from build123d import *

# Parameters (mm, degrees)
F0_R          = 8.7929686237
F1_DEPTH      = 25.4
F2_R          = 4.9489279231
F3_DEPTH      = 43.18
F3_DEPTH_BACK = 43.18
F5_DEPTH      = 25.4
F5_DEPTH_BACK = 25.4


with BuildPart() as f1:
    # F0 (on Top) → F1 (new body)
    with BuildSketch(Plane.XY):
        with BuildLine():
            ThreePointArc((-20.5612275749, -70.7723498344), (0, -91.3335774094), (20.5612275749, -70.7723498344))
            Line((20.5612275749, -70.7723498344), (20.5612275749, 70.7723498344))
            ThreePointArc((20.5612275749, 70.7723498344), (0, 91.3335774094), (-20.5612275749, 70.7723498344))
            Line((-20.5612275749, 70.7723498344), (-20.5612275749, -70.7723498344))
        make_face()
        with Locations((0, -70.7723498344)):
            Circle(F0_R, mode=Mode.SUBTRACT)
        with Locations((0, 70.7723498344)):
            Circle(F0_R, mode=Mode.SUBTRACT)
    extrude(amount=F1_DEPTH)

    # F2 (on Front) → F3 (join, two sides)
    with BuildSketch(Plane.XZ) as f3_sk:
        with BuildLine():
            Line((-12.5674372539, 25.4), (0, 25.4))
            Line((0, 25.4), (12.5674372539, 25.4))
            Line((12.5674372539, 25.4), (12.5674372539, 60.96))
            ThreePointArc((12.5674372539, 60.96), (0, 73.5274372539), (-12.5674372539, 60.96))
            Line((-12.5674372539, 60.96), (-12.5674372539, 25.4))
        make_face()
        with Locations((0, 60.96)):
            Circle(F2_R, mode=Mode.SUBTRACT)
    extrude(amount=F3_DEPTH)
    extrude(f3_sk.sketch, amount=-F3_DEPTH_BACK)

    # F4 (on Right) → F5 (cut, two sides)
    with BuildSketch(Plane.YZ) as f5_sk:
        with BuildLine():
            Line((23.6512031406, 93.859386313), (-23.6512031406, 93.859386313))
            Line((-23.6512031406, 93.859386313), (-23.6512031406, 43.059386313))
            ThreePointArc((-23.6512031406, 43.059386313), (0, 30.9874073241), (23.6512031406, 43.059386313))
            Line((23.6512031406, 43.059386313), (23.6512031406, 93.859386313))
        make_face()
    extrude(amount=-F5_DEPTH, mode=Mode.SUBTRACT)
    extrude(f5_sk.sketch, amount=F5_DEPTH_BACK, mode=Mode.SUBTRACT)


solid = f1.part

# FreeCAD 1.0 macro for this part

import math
import FreeCAD as App
import Part
import Sketcher

V = App.Vector
Q = App.Units.Quantity

doc = App.newDocument("Part")
body = doc.addObject("PartDesign::Body", "Body")

sketch1 = body.newObject("Sketcher::SketchObject", "Sketch")
sketch1.AttachmentSupport = (doc.getObject("XY_Plane"), [""])
sketch1.MapMode = "FlatFace"
sketch1.addGeometry(Part.ArcOfCircle(Part.Circle(V(0, -70.77235, 0), V(0, 0, 1), 20.561228), math.radians(180), math.radians(360)), False)
sketch1.addGeometry(Part.LineSegment(V(20.561228, -70.77235, 0), V(20.561228, 70.77235, 0)), False)
sketch1.addGeometry(Part.ArcOfCircle(Part.Circle(V(0, 70.77235, 0), V(0, 0, 1), 20.561228), math.radians(0), math.radians(180)), False)
sketch1.addGeometry(Part.LineSegment(V(-20.561228, 70.77235, 0), V(-20.561228, -70.77235, 0)), False)
sketch1.addGeometry(Part.Circle(V(0, -70.77235, 0), V(0, 0, 1), 8.792969), False)
sketch1.addGeometry(Part.Circle(V(0, 70.77235, 0), V(0, 0, 1), 8.792969), False)
sketch1.addConstraint(Sketcher.Constraint("Tangent", 0, 2, 1, 1))
sketch1.addConstraint(Sketcher.Constraint("Tangent", 1, 2, 2, 1))
sketch1.addConstraint(Sketcher.Constraint("Tangent", 2, 2, 3, 1))
sketch1.addConstraint(Sketcher.Constraint("Tangent", 3, 2, 0, 1))
sketch1.addConstraint(Sketcher.Constraint("Vertical", 1))
sketch1.addConstraint(Sketcher.Constraint("Vertical", 3))
sketch1.addConstraint(Sketcher.Constraint("Coincident", 4, 3, 0, 3))
sketch1.addConstraint(Sketcher.Constraint("Coincident", 5, 3, 2, 3))
sketch1.addConstraint(Sketcher.Constraint("Equal", 4, 5))
sketch1.addConstraint(Sketcher.Constraint("Symmetric", 0, 3, 2, 3, -1, 1))
sketch1.addConstraint(Sketcher.Constraint("Diameter", 4, 17.585937))
sketch1.addConstraint(Sketcher.Constraint("DistanceY", 1, 1, 1, 2, 141.5447))
sketch1.addConstraint(Sketcher.Constraint("Radius", 0, 20.561228))
pad1 = body.newObject("PartDesign::Pad", "Pad")
pad1.Profile = sketch1
pad1.Length = Q("1 in")

sketch2 = body.newObject("Sketcher::SketchObject", "Sketch001")
sketch2.AttachmentSupport = (doc.getObject("XZ_Plane"), [""])
sketch2.MapMode = "FlatFace"
sketch2.addGeometry(Part.LineSegment(V(-12.567437, 25.4, 0), V(12.567437, 25.4, 0)), False)
sketch2.addGeometry(Part.LineSegment(V(12.567437, 25.4, 0), V(12.567437, 60.96, 0)), False)
sketch2.addGeometry(Part.ArcOfCircle(Part.Circle(V(0, 60.96, 0), V(0, 0, 1), 12.567437), math.radians(0), math.radians(180)), False)
sketch2.addGeometry(Part.LineSegment(V(-12.567437, 60.96, 0), V(-12.567437, 25.4, 0)), False)
sketch2.addGeometry(Part.Circle(V(0, 60.96, 0), V(0, 0, 1), 4.948928), False)
sketch2.addConstraint(Sketcher.Constraint("Coincident", 0, 2, 1, 1))
sketch2.addConstraint(Sketcher.Constraint("Tangent", 1, 2, 2, 1))
sketch2.addConstraint(Sketcher.Constraint("Tangent", 2, 2, 3, 1))
sketch2.addConstraint(Sketcher.Constraint("Coincident", 3, 2, 0, 1))
sketch2.addConstraint(Sketcher.Constraint("Horizontal", 0))
sketch2.addConstraint(Sketcher.Constraint("Vertical", 1))
sketch2.addConstraint(Sketcher.Constraint("Vertical", 3))
sketch2.addConstraint(Sketcher.Constraint("Coincident", 4, 3, 2, 3))
sketch2.addConstraint(Sketcher.Constraint("PointOnObject", 2, 3, -2))
sketch2.addConstraint(Sketcher.Constraint("DistanceY", 1, 1, 1, 2, Q("1.4 in")))
sketch2.addConstraint(Sketcher.Constraint("DistanceY", -1, 1, 0, 2, Q("1 in")))
sketch2.addConstraint(Sketcher.Constraint("Diameter", 4, 9.897856))
sketch2.addConstraint(Sketcher.Constraint("Radius", 2, 12.567437))
pad2 = body.newObject("PartDesign::Pad", "Pad001")
pad2.Profile = sketch2
pad2.Type = "TwoLengths"
pad2.Length = Q("1.7 in")
pad2.Length2 = Q("1.7 in")

sketch3 = body.newObject("Sketcher::SketchObject", "Sketch002")
sketch3.AttachmentSupport = (doc.getObject("YZ_Plane"), [""])
sketch3.MapMode = "FlatFace"
sketch3.addGeometry(Part.LineSegment(V(23.651203, 93.859386, 0), V(-23.651203, 93.859386, 0)), False)
sketch3.addGeometry(Part.LineSegment(V(-23.651203, 93.859386, 0), V(-23.651203, 43.059386, 0)), False)
sketch3.addGeometry(Part.ArcOfCircle(Part.Circle(V(0, 60.191902, 0), V(0, 0, 1), 29.204494), math.radians(-144.081089), math.radians(-35.918911)), False)
sketch3.addGeometry(Part.LineSegment(V(23.651203, 43.059386, 0), V(23.651203, 93.859386, 0)), False)
sketch3.addConstraint(Sketcher.Constraint("Coincident", 0, 2, 1, 1))
sketch3.addConstraint(Sketcher.Constraint("Coincident", 1, 2, 2, 1))
sketch3.addConstraint(Sketcher.Constraint("Coincident", 2, 2, 3, 1))
sketch3.addConstraint(Sketcher.Constraint("Coincident", 3, 2, 0, 1))
sketch3.addConstraint(Sketcher.Constraint("Horizontal", 0))
sketch3.addConstraint(Sketcher.Constraint("Vertical", 1))
sketch3.addConstraint(Sketcher.Constraint("Vertical", 3))
sketch3.addConstraint(Sketcher.Constraint("Symmetric", 1, 2, 2, 2, -2))
sketch3.addConstraint(Sketcher.Constraint("DistanceY", 1, 2, 1, 1, Q("2 in")))
sketch3.addConstraint(Sketcher.Constraint("Radius", 2, 29.204494))
sketch3.addConstraint(Sketcher.Constraint("DistanceY", -1, 1, 2, 3, 60.191902))
sketch3.addConstraint(Sketcher.Constraint("DistanceX", 0, 2, 0, 1, 47.302406))
pocket1 = body.newObject("PartDesign::Pocket", "Pocket")
pocket1.Profile = sketch3
pocket1.Type = "ThroughAll"
pocket1.Midplane = True

doc.recompute()
